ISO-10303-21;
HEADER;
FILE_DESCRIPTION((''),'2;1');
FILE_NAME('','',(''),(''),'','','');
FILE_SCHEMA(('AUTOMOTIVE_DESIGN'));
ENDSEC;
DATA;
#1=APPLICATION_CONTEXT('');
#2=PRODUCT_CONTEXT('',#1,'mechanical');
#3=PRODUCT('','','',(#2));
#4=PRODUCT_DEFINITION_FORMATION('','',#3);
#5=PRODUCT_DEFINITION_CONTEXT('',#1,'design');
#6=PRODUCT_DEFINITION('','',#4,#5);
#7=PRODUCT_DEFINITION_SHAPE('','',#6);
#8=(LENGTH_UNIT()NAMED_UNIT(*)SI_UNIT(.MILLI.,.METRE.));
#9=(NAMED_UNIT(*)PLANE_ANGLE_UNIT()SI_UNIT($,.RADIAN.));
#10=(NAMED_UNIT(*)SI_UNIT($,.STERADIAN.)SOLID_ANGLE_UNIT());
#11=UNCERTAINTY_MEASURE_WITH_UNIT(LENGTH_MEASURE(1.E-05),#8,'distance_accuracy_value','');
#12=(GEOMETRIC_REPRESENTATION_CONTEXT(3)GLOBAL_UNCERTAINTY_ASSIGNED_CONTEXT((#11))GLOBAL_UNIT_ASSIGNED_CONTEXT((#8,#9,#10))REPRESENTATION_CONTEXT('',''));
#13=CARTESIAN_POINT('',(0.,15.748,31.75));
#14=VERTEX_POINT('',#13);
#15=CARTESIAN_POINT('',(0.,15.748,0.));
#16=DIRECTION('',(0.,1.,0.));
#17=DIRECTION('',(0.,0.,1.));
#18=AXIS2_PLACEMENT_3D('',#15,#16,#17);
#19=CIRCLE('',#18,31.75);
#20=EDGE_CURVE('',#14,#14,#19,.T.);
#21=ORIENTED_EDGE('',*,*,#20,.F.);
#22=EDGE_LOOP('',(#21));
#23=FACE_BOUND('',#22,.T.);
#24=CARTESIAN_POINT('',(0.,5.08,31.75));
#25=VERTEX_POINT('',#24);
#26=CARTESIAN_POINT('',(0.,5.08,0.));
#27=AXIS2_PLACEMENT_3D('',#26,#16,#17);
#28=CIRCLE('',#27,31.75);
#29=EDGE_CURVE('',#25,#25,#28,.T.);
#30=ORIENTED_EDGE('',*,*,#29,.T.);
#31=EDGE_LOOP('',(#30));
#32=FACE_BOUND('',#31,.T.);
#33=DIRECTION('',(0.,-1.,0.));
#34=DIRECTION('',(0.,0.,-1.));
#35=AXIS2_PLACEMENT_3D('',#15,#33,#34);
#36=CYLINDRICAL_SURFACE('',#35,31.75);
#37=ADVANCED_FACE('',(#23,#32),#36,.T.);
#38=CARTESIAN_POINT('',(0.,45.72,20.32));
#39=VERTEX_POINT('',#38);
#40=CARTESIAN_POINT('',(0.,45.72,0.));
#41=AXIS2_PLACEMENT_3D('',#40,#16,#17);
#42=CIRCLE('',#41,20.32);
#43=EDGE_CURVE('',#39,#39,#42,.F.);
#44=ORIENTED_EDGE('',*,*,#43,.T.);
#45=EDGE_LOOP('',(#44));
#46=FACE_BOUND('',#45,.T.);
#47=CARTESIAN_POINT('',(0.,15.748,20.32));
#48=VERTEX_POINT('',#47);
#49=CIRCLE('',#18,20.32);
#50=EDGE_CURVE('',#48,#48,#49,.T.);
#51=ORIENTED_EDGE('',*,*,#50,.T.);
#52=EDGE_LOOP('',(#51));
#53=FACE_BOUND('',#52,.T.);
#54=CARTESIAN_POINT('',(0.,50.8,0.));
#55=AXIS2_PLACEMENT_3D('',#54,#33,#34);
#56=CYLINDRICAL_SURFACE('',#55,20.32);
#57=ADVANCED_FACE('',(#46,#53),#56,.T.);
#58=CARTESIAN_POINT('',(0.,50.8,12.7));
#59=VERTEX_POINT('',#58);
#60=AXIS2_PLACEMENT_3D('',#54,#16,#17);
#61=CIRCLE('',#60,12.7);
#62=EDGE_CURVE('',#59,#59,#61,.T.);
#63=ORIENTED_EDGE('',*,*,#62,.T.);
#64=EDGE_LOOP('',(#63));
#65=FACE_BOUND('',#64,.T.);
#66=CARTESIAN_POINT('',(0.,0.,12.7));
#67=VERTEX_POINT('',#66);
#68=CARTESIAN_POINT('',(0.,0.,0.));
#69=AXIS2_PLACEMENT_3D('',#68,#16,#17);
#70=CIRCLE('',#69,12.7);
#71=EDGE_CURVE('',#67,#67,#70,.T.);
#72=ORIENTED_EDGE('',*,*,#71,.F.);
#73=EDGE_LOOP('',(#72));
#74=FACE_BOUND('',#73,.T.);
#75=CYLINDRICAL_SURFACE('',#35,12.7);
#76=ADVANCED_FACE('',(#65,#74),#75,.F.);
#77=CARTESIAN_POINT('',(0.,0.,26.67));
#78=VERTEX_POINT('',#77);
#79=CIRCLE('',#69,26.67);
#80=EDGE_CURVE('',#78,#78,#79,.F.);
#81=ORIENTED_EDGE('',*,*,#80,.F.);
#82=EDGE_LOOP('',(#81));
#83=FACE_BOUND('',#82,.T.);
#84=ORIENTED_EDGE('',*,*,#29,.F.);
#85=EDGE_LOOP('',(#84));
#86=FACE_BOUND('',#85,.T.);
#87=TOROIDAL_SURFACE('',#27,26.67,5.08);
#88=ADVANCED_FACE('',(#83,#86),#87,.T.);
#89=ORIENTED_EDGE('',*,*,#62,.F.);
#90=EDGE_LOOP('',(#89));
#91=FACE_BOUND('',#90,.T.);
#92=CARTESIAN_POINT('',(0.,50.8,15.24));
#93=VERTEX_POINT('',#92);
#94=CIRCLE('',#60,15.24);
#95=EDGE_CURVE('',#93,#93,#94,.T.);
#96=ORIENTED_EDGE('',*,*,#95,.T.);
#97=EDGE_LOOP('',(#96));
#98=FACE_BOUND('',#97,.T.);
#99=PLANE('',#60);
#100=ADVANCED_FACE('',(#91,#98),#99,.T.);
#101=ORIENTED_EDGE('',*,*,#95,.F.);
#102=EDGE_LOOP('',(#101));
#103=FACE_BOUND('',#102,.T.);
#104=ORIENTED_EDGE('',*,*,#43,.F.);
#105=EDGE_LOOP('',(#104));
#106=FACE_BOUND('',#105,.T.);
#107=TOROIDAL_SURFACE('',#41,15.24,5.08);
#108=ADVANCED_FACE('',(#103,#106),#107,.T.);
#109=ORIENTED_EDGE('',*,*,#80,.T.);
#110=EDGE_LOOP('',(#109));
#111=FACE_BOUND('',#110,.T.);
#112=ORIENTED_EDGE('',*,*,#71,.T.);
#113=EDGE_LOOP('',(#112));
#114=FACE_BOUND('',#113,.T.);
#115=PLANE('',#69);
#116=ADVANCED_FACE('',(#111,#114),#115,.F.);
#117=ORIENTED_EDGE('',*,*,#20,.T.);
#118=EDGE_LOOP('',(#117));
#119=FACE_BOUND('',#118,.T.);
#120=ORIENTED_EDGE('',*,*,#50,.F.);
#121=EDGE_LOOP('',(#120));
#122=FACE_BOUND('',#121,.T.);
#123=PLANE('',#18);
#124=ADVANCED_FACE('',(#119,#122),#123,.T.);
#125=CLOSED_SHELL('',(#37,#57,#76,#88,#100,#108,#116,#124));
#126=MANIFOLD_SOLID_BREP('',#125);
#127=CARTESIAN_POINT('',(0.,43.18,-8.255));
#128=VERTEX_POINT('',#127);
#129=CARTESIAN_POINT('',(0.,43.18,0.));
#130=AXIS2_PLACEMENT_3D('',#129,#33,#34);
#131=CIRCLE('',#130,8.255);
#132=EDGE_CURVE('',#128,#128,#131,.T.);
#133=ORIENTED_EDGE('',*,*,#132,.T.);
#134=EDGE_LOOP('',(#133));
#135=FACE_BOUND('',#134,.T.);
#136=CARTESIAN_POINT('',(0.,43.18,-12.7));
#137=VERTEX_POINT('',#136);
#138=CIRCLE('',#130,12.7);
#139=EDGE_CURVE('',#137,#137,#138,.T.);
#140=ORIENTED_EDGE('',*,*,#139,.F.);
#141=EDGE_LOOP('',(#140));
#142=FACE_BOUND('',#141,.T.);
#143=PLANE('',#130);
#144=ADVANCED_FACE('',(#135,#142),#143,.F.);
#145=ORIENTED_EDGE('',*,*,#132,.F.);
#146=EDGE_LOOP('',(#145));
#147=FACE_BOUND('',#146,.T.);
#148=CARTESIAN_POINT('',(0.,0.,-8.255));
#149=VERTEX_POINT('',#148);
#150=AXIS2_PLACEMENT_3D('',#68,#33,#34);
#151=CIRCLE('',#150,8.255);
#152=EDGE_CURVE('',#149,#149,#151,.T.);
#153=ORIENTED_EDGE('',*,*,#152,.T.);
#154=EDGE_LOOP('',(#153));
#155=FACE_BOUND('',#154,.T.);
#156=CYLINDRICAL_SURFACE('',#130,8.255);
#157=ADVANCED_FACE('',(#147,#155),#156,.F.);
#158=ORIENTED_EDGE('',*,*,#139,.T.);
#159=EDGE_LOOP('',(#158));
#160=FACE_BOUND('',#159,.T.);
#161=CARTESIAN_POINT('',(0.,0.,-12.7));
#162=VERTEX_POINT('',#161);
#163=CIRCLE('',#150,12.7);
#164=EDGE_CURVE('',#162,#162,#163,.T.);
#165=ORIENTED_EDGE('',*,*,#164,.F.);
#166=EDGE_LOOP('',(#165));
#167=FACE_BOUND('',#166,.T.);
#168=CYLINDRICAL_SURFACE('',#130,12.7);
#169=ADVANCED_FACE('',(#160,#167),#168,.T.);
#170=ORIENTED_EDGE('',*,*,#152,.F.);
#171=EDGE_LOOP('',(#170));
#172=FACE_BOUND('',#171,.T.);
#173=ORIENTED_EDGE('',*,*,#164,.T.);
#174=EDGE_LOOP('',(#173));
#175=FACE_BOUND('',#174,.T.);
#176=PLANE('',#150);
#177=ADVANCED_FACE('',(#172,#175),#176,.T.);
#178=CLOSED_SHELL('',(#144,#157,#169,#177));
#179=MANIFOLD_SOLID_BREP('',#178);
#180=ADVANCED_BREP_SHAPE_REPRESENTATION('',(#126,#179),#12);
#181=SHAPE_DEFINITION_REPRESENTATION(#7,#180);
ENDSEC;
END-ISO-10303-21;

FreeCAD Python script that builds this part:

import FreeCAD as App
import Part
import Sketcher
Q = App.Units.Quantity


def edges_at(feature, points):
    """Names of the edges that pass closest to the given points."""
    edges = feature.Shape.Edges
    near = lambda p: min(range(len(edges)), key=lambda i: edges[i].distToShape(Part.Vertex(*p))[0])
    return sorted({f"Edge{near(p) + 1}" for p in points})

doc = App.newDocument("Part")
body = doc.addObject("PartDesign::Body", "Body")

# Sketch on XZ plane
sketch1 = doc.addObject("Sketcher::SketchObject", "Sketch")
body.addObject(sketch1)
sketch1.AttachmentSupport = (doc.XZ_Plane, [""])
sketch1.MapMode = "FlatFace"
sketch1.addGeometry(Part.Circle(App.Vector(0, 0, 0), App.Vector(0, 0, 1), 32), False)
sketch1.addGeometry(Part.Circle(App.Vector(0, 0, 0), App.Vector(0, 0, 1), 13), False)
sketch1.addConstraint(Sketcher.Constraint("Coincident", 0, 3, -1, 1))
sketch1.addConstraint(Sketcher.Constraint("Coincident", 1, 3, -1, 1))
sketch1.addConstraint(Sketcher.Constraint("Diameter", 1, Q("1 in")))
sketch1.addConstraint(Sketcher.Constraint("Diameter", 0, Q("2.5 in")))
pad1 = doc.addObject("PartDesign::Pad", "Pad")
body.addObject(pad1)
pad1.Profile = sketch1
pad1.Length = Q("0.62 in")
pad1.Reversed = True

# Sketch on XZ plane
sketch2 = doc.addObject("Sketcher::SketchObject", "Sketch001")
body.addObject(sketch2)
sketch2.AttachmentSupport = (doc.XZ_Plane, [""])
sketch2.MapMode = "FlatFace"
sketch2.AttachmentOffset = App.Placement(App.Vector(0, 0, -0.62 * 25.4), App.Rotation())
sketch2.addGeometry(Part.Circle(App.Vector(0, 0, 0), App.Vector(0, 0, 1), 20), False)
sketch2.addGeometry(Part.Circle(App.Vector(0, 0, 0), App.Vector(0, 0, 1), 13), False)
sketch2.addConstraint(Sketcher.Constraint("Coincident", 0, 3, -1, 1))
sketch2.addConstraint(Sketcher.Constraint("Coincident", 1, 3, -1, 1))
sketch2.addConstraint(Sketcher.Constraint("Diameter", 1, Q("1 in")))
sketch2.addConstraint(Sketcher.Constraint("Diameter", 0, Q("1.6 in")))
pad2 = doc.addObject("PartDesign::Pad", "Pad001")
body.addObject(pad2)
pad2.Profile = sketch2
pad2.Length = Q("1.38 in")
pad2.Reversed = True
doc.recompute()

fillet = doc.addObject("PartDesign::Fillet", "Fillet")
body.addObject(fillet)
fillet.Base = (pad2, edges_at(pad2, [(-31.75, 0, 0)]))
fillet.Radius = Q("0.2 in")
doc.recompute()

fillet2 = doc.addObject("PartDesign::Fillet", "Fillet001")
body.addObject(fillet2)
fillet2.Base = (fillet, edges_at(fillet, [(-20.32, 50.8, 0)]))
fillet2.Radius = Q("0.2 in")
body2 = doc.addObject("PartDesign::Body", "Body001")

# Sketch on XZ plane
sketch3 = doc.addObject("Sketcher::SketchObject", "Sketch002")
body2.addObject(sketch3)
sketch3.AttachmentSupport = (doc.getObject("XZ_Plane001"), [""])
sketch3.MapMode = "FlatFace"
sketch3.addGeometry(Part.Circle(App.Vector(0, 0, 0), App.Vector(0, 0, 1), 13), False)
sketch3.addGeometry(Part.Circle(App.Vector(0, 0, 0), App.Vector(0, 0, 1), 8), False)
sketch3.addConstraint(Sketcher.Constraint("Coincident", 0, 3, -1, 1))
sketch3.addConstraint(Sketcher.Constraint("Coincident", 1, 3, -1, 1))
sketch3.addConstraint(Sketcher.Constraint("Diameter", 0, Q("1 in")))
sketch3.addConstraint(Sketcher.Constraint("Diameter", 1, Q("0.65 in")))
pad3 = doc.addObject("PartDesign::Pad", "Pad002")
body2.addObject(pad3)
pad3.Profile = sketch3
pad3.Length = Q("1.7 in")
pad3.Reversed = True

doc.recompute()
